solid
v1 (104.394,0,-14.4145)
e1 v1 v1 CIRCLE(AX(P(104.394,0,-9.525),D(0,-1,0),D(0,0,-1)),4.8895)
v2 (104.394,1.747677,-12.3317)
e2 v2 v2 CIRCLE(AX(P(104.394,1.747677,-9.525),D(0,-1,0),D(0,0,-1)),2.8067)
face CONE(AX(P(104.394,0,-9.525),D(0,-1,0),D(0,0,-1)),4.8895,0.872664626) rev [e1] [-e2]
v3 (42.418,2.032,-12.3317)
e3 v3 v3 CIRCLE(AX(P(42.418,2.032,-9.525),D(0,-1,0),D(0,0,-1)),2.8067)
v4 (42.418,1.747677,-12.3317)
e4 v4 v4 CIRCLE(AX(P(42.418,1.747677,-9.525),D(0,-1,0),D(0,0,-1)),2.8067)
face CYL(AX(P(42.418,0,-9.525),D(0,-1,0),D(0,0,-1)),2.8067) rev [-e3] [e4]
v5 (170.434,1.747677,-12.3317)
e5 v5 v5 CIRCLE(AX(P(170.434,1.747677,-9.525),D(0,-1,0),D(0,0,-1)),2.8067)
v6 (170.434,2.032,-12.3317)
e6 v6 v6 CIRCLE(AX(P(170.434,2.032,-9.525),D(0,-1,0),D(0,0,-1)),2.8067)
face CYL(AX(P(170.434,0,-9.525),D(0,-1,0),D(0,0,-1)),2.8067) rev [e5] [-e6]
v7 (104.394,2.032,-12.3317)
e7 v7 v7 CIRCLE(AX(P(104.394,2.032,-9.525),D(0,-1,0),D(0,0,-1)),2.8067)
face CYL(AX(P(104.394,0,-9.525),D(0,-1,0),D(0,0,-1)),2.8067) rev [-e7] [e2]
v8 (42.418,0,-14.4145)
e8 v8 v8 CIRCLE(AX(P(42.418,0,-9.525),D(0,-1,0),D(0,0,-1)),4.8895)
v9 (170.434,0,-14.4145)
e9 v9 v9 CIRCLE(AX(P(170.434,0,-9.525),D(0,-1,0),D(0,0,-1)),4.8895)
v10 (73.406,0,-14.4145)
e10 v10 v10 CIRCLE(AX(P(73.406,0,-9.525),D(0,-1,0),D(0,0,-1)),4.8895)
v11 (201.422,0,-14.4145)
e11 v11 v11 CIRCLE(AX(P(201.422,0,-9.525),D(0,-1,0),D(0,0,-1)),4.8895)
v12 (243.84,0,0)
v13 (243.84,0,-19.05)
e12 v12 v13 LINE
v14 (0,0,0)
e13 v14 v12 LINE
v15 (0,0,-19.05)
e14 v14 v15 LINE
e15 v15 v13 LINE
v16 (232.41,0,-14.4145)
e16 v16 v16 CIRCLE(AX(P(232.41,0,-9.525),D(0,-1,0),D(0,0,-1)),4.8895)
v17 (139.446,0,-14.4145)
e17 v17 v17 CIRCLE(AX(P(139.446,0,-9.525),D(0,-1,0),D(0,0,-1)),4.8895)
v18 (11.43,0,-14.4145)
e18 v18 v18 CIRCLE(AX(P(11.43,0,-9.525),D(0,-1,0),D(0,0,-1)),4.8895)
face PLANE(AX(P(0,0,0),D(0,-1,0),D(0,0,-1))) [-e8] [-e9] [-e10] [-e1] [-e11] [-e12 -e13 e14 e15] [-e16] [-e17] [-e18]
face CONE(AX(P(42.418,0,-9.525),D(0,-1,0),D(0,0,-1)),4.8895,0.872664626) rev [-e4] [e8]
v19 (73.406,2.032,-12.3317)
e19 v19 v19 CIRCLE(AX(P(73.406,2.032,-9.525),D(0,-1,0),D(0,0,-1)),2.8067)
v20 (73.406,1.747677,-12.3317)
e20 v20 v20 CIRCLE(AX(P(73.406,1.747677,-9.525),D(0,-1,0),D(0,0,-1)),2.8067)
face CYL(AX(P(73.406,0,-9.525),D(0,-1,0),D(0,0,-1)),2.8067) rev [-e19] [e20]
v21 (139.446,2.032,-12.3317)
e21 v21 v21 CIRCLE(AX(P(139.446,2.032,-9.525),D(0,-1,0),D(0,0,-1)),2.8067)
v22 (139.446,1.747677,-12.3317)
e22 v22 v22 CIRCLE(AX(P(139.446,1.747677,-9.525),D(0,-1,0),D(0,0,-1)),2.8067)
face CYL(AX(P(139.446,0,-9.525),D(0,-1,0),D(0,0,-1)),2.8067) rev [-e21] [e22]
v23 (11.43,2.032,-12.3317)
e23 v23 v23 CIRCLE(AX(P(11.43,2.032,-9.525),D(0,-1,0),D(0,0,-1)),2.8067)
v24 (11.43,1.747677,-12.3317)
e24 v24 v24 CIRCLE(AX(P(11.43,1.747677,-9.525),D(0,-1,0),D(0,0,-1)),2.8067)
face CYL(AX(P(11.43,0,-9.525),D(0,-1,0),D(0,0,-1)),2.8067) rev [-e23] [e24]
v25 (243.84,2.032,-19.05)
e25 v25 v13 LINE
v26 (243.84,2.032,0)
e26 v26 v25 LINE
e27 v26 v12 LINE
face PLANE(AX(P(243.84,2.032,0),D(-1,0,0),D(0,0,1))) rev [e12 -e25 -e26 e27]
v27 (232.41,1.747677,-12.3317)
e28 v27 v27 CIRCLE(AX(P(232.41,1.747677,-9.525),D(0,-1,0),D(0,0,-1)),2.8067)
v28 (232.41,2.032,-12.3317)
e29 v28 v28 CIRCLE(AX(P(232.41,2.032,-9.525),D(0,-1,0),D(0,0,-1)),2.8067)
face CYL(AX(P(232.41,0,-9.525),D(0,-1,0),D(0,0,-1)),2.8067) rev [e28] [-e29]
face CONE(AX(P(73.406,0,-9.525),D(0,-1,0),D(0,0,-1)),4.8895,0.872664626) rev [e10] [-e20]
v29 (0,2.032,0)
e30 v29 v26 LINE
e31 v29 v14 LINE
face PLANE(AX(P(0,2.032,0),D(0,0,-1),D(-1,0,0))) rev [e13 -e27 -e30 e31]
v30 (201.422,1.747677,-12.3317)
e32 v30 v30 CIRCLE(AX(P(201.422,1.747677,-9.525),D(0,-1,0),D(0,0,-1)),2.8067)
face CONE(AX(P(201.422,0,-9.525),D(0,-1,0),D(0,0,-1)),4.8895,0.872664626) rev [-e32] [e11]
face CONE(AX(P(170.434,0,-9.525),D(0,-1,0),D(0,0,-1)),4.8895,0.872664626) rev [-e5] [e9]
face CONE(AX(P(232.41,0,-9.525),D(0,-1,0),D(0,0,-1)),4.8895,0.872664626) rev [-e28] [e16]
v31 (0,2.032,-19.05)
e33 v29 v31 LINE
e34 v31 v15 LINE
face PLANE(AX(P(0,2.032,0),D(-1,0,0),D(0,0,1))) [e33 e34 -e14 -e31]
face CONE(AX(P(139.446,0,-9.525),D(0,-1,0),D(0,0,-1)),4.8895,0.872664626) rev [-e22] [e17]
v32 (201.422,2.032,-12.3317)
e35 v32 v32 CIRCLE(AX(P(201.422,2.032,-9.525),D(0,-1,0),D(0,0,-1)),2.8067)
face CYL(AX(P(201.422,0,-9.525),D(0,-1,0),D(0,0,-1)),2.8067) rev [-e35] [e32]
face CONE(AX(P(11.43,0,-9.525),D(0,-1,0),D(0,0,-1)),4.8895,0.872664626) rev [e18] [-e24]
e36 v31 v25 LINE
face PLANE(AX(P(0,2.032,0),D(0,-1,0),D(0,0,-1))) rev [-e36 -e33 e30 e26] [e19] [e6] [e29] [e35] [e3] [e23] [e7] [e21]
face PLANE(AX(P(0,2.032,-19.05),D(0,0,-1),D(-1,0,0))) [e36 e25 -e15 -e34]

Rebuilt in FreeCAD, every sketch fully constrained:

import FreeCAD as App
import Part
import Sketcher

V = App.Vector
Q = App.Units.Quantity


def add_polygon(sketch, points):
    """Adds a closed chain of lines whose ends are joined by coincident constraints."""
    first, n = sketch.GeometryCount, len(points)
    for a, b in zip(points, points[1:] + points[:1]):
        sketch.addGeometry(Part.LineSegment(App.Vector(*a, 0), App.Vector(*b, 0)), False)
    for i in range(n):
        sketch.addConstraint(Sketcher.Constraint("Coincident", first + i, 2, first + (i + 1) % n, 1))

doc = App.newDocument("Part")
body = doc.addObject("PartDesign::Body", "Body")

# Sketch on XZ plane
sketch1 = body.newObject("Sketcher::SketchObject", "Sketch")
sketch1.AttachmentSupport = (doc.getObject("XZ_Plane"), [""])
sketch1.MapMode = "FlatFace"
add_polygon(sketch1, [(0, -19), (0, 0), (244, 0), (244, -19)])  # lines 0-3
sketch1.addConstraint(Sketcher.Constraint("Vertical", 0))
sketch1.addConstraint(Sketcher.Constraint("Horizontal", 1))
sketch1.addConstraint(Sketcher.Constraint("Vertical", 2))
sketch1.addConstraint(Sketcher.Constraint("Horizontal", 3))
sketch1.addConstraint(Sketcher.Constraint("Coincident", 0, 2, -1, 1))
sketch1.addConstraint(Sketcher.Constraint("DistanceX", 1, 1, 1, 2, Q("9.6 in")))
sketch1.addConstraint(Sketcher.Constraint("DistanceY", 0, 1, 0, 2, Q("0.75 in")))
pad1 = body.newObject("PartDesign::Pad", "Pad")
pad1.Profile = sketch1
pad1.Length = Q("0.08 in")
pad1.Reversed = True

# Sketch on YZ plane
sketch2 = body.newObject("Sketcher::SketchObject", "Sketch001")
sketch2.AttachmentSupport = (doc.getObject("YZ_Plane"), [""])
sketch2.MapMode = "FlatFace"
sketch2.AttachmentOffset = App.Placement(V(0, 0, 0.45 * 25.4), App.Rotation())
add_polygon(sketch2, [(2.03, -9.53), (0, -9.53), (0, -14.41), (1.75, -12.33), (2.03, -12.33)])  # lines 0-4
sketch2.addGeometry(Part.LineSegment(V(0, -9.53, 0), V(2.03, -9.53, 0)), True)  # axis
sketch2.addConstraint(Sketcher.Constraint("Horizontal", 0))
sketch2.addConstraint(Sketcher.Constraint("Vertical", 1))
sketch2.addConstraint(Sketcher.Constraint("Horizontal", 3))
sketch2.addConstraint(Sketcher.Constraint("Vertical", 4))
sketch2.addConstraint(Sketcher.Constraint("Horizontal", 5))
sketch2.addConstraint(Sketcher.Constraint("Coincident", 5, 1, 0, 2))
sketch2.addConstraint(Sketcher.Constraint("PointOnObject", 0, 2, -2))
sketch2.addConstraint(Sketcher.Constraint("Vertical", 3, 2, 5, 2))
sketch2.addConstraint(Sketcher.Constraint("Angle", 2, Q("50 deg")))
sketch2.addConstraint(Sketcher.Constraint("DistanceX", 0, 2, 0, 1, Q("0.08 in")))
sketch2.addConstraint(Sketcher.Constraint("DistanceY", 1, 2, 1, 1, Q("0.1925 in")))
sketch2.addConstraint(Sketcher.Constraint("DistanceY", 4, 1, 4, 2, Q("0.1105 in")))
sketch2.addConstraint(Sketcher.Constraint("DistanceY", 0, 2, -1, 1, Q("0.375 in")))
groove = body.newObject("PartDesign::Groove", "Groove")
groove.Profile = sketch2
groove.ReferenceAxis = (sketch2, ["Axis0"])
groove.Angle = 360
doc.recompute()

linearpattern = body.newObject("PartDesign::LinearPattern", "LinearPattern")
linearpattern.Originals = [groove]
linearpattern.Direction = (doc.getObject("X_Axis"), [""])
linearpattern.Mode = "offset"
linearpattern.Offset = Q("1.22 in")
linearpattern.Occurrences = 2
body.Tip = linearpattern
doc.recompute()

linearpattern2 = body.newObject("PartDesign::LinearPattern", "LinearPattern001")
linearpattern2.Originals = [groove]
linearpattern2.Direction = (doc.getObject("X_Axis"), [""])
linearpattern2.Mode = "offset"
linearpattern2.Offset = Q("2.44 in")
linearpattern2.Occurrences = 2
body.Tip = linearpattern2
doc.recompute()

linearpattern3 = body.newObject("PartDesign::LinearPattern", "LinearPattern002")
linearpattern3.Originals = [groove]
linearpattern3.Direction = (doc.getObject("X_Axis"), [""])
linearpattern3.Mode = "offset"
linearpattern3.Offset = Q("3.66 in")
linearpattern3.Occurrences = 2
body.Tip = linearpattern3
doc.recompute()

linearpattern4 = body.newObject("PartDesign::LinearPattern", "LinearPattern003")
linearpattern4.Originals = [groove]
linearpattern4.Direction = (doc.getObject("X_Axis"), [""])
linearpattern4.Mode = "offset"
linearpattern4.Offset = Q("5.04 in")
linearpattern4.Occurrences = 2
body.Tip = linearpattern4
doc.recompute()

linearpattern5 = body.newObject("PartDesign::LinearPattern", "LinearPattern004")
linearpattern5.Originals = [groove]
linearpattern5.Direction = (doc.getObject("X_Axis"), [""])
linearpattern5.Mode = "offset"
linearpattern5.Offset = Q("6.26 in")
linearpattern5.Occurrences = 2
body.Tip = linearpattern5
doc.recompute()

linearpattern6 = body.newObject("PartDesign::LinearPattern", "LinearPattern005")
linearpattern6.Originals = [groove]
linearpattern6.Direction = (doc.getObject("X_Axis"), [""])
linearpattern6.Mode = "offset"
linearpattern6.Offset = Q("7.48 in")
linearpattern6.Occurrences = 2
body.Tip = linearpattern6
doc.recompute()

linearpattern7 = body.newObject("PartDesign::LinearPattern", "LinearPattern006")
linearpattern7.Originals = [groove]
linearpattern7.Direction = (doc.getObject("X_Axis"), [""])
linearpattern7.Mode = "offset"
linearpattern7.Offset = Q("8.7 in")
linearpattern7.Occurrences = 2
body.Tip = linearpattern7

doc.recompute()
